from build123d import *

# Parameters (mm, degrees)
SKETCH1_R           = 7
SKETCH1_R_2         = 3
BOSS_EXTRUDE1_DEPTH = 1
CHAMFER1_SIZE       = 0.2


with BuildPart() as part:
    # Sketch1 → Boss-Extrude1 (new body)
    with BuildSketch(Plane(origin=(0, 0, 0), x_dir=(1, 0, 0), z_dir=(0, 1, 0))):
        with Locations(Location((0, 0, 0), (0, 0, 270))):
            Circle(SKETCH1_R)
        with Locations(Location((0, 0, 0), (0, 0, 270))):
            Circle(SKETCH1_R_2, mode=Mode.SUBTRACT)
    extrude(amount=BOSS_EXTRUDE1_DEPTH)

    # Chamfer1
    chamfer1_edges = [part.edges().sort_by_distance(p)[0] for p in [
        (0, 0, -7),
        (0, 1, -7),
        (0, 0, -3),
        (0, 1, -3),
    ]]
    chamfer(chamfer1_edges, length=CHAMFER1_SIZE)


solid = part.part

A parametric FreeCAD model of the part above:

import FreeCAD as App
import Part
import Sketcher


def edges_at(feature, points):
    """Names of the edges that pass closest to the given points."""
    edges = feature.Shape.Edges
    near = lambda p: min(range(len(edges)), key=lambda i: edges[i].distToShape(Part.Vertex(*p))[0])
    return sorted({f"Edge{near(p) + 1}" for p in points})

doc = App.newDocument("Part")
body = doc.addObject("PartDesign::Body", "Body")

# Sketch on XZ plane
sketch1 = doc.addObject("Sketcher::SketchObject", "Sketch")
body.addObject(sketch1)
sketch1.AttachmentSupport = (doc.XZ_Plane, [""])
sketch1.MapMode = "FlatFace"
sketch1.addGeometry(Part.Circle(App.Vector(0, 0, 0), App.Vector(0, 0, 1), 7), False)
sketch1.addGeometry(Part.Circle(App.Vector(0, 0, 0), App.Vector(0, 0, 1), 3), False)
sketch1.addConstraint(Sketcher.Constraint("Coincident", 0, 3, -1, 1))
sketch1.addConstraint(Sketcher.Constraint("Coincident", 1, 3, -1, 1))
sketch1.addConstraint(Sketcher.Constraint("Diameter", 0, 14.0))
sketch1.addConstraint(Sketcher.Constraint("Diameter", 1, 6.0))
pad1 = doc.addObject("PartDesign::Pad", "Pad")
body.addObject(pad1)
pad1.Profile = sketch1
pad1.Length = 1
pad1.Reversed = True
doc.recompute()

chamfer = doc.addObject("PartDesign::Chamfer", "Chamfer")
body.addObject(chamfer)
chamfer.Base = (pad1, edges_at(pad1, [
    (0, 0, -7),
    (0, 1, -7),
    (0, 0, -3),
    (0, 1, -3),
]))
chamfer.Size = 0.2

doc.recompute()
